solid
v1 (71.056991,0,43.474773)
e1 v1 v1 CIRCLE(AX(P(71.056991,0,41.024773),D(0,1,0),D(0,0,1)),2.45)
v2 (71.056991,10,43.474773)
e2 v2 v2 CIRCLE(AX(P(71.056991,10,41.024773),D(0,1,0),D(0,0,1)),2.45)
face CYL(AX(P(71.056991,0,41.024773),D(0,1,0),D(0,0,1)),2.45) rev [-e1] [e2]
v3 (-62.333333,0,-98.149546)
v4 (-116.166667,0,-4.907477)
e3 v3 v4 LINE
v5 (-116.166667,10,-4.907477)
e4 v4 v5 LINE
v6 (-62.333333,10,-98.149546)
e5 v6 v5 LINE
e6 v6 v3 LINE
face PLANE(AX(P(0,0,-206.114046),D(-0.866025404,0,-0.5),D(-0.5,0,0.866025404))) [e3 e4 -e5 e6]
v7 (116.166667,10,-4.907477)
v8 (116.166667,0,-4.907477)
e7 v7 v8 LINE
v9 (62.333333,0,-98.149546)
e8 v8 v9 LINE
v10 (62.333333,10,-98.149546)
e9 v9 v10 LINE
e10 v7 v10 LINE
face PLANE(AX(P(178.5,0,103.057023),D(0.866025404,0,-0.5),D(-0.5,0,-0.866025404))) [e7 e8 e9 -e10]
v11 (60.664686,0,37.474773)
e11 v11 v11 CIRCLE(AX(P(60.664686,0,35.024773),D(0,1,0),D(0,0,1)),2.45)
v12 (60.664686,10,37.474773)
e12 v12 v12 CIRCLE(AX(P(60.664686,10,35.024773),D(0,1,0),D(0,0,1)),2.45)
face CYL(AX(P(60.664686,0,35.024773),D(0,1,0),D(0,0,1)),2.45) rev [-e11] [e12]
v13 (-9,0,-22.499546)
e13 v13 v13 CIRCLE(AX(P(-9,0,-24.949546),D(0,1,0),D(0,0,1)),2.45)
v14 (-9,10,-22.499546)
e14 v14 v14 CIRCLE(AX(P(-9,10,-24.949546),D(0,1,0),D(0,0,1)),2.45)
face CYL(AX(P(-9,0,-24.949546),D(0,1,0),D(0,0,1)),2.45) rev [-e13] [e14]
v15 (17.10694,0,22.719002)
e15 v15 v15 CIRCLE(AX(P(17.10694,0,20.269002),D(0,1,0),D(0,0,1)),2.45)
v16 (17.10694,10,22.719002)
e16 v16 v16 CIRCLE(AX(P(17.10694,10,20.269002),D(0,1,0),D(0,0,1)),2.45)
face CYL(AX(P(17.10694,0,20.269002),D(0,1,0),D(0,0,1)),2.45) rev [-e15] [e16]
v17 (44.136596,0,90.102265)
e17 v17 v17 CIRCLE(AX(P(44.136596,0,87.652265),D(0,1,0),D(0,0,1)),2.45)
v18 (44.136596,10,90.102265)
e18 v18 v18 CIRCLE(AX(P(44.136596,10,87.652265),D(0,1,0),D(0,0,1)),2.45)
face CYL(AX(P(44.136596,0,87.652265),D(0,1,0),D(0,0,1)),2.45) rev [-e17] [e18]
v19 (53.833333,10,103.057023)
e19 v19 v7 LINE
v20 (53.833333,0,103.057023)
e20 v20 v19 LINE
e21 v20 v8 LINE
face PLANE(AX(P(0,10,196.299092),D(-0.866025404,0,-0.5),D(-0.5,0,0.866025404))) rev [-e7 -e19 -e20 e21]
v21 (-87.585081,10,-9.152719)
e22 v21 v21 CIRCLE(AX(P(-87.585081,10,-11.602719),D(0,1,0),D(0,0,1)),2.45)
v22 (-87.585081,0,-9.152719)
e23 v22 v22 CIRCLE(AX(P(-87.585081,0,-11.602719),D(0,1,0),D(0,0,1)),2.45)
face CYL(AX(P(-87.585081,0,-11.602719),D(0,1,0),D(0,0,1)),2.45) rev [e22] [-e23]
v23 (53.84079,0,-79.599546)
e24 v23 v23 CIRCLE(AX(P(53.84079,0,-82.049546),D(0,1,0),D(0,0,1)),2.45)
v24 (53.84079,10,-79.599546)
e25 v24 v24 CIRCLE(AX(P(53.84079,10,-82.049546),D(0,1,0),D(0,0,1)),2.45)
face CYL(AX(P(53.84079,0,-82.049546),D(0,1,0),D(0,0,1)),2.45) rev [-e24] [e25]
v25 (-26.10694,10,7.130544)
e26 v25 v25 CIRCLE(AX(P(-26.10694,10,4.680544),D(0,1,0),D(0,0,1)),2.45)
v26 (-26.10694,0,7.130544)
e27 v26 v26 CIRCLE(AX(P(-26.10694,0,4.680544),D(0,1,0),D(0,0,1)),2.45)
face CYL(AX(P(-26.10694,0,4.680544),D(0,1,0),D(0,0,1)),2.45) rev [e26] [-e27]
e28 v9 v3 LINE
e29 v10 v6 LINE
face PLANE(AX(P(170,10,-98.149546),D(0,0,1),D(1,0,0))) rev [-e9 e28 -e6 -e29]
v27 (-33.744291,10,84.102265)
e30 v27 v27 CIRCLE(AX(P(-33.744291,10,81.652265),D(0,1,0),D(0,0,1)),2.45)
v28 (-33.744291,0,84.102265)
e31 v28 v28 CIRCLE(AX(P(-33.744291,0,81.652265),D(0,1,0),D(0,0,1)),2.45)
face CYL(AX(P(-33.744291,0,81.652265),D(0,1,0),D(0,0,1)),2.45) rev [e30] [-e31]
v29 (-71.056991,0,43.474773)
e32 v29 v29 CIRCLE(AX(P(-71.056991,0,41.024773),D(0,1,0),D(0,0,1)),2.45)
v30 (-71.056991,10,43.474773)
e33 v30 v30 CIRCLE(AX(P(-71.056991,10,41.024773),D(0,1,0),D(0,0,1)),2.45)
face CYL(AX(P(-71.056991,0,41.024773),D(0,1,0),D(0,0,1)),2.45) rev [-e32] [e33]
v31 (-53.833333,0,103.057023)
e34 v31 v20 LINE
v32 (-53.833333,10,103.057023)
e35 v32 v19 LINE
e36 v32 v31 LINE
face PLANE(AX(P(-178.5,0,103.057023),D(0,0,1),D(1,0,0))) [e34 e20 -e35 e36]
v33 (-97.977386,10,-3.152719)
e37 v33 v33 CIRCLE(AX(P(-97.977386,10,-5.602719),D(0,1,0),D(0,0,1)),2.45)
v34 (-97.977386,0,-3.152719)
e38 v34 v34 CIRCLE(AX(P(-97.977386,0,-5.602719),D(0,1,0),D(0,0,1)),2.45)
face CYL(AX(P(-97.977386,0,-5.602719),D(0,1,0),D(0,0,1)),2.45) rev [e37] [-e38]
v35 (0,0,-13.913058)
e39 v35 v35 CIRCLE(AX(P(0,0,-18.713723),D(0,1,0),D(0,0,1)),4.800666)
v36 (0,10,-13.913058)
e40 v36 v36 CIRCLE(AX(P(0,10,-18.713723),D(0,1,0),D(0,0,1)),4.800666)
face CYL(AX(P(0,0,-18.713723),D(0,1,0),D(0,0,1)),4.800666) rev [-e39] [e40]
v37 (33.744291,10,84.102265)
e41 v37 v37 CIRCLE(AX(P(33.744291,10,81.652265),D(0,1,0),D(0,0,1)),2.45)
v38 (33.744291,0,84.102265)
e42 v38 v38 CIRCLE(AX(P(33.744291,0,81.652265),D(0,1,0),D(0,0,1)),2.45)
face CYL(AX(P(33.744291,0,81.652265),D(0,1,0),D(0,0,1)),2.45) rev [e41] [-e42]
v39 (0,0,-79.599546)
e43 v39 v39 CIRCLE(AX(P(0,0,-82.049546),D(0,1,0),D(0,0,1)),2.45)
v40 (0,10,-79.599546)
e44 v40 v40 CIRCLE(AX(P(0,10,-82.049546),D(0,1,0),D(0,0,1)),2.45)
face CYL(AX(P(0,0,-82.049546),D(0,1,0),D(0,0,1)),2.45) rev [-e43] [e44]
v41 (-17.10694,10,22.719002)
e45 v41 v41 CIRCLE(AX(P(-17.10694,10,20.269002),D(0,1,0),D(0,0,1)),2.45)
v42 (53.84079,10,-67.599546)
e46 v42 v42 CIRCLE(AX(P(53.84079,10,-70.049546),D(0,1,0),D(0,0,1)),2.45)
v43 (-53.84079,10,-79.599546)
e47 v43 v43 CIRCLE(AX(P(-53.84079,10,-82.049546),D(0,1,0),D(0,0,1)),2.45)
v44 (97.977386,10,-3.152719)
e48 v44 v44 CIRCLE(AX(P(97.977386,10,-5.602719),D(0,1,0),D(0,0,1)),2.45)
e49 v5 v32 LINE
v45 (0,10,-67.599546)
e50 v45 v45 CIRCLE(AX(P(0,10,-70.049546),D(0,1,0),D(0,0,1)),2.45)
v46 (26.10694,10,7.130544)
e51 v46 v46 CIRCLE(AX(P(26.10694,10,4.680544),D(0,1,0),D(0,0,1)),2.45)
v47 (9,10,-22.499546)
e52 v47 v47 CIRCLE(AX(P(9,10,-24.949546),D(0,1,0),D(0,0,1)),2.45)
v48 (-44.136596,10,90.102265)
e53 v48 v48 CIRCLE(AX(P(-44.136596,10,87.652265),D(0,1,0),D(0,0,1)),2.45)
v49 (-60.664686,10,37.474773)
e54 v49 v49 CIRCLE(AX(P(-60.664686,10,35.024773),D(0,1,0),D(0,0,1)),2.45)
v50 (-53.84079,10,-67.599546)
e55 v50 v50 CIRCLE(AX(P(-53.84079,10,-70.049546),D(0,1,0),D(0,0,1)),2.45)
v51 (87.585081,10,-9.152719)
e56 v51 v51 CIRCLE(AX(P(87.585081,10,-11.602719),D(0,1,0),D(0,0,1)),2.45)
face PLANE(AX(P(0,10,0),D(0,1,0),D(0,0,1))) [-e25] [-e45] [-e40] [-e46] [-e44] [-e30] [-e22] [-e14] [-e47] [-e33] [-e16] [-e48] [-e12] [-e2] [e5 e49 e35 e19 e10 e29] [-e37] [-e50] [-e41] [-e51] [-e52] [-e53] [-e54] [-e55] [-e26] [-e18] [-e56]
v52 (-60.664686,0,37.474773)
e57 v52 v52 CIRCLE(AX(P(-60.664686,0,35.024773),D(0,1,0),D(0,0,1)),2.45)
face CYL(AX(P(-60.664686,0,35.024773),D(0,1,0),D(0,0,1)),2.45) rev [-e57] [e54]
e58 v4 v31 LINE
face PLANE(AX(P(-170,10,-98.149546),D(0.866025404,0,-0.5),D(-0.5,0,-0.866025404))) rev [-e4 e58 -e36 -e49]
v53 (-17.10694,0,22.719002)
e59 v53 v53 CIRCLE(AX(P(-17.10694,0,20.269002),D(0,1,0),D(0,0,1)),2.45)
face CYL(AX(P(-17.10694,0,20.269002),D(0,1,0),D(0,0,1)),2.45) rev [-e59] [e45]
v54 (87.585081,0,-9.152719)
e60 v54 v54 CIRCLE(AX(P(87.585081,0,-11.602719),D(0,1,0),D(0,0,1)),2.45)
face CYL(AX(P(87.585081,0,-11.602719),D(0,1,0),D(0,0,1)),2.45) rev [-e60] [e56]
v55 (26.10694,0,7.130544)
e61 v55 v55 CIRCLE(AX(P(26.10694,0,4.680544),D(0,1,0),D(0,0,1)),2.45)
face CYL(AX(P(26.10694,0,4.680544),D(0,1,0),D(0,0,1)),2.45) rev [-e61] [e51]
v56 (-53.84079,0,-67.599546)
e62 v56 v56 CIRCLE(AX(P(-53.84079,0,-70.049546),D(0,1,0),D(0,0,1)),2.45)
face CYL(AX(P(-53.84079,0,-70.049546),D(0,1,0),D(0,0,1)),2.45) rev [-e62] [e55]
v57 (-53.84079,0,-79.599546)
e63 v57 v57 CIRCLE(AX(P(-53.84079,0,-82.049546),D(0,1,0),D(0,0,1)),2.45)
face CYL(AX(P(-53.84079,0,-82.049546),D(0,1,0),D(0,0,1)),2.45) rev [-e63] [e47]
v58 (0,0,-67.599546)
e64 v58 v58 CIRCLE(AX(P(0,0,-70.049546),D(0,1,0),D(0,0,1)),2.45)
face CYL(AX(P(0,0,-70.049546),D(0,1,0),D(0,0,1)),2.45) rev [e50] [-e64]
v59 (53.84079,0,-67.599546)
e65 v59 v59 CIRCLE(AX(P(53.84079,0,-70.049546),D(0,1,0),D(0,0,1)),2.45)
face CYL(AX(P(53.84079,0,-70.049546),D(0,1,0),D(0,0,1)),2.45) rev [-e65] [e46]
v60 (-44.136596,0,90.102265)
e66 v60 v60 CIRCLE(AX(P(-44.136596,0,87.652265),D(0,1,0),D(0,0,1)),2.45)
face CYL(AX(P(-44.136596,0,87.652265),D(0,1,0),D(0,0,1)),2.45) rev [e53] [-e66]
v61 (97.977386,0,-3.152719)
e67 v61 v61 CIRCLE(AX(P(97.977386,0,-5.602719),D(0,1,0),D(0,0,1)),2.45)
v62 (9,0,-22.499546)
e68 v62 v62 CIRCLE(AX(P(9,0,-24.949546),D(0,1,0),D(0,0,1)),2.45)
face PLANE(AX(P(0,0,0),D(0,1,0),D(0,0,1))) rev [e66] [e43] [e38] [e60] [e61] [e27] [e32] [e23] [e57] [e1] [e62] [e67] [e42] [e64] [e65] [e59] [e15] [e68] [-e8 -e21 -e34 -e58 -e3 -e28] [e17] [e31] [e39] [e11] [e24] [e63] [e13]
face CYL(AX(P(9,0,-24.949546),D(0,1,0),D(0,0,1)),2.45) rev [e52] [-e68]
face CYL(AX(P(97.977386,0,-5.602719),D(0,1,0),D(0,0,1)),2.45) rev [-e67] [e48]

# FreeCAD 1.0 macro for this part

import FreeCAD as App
import Part
import Sketcher
from FreeCAD import Vector
Q = App.Units.Quantity


def add_polygon(sketch, points):
    """Adds a closed chain of lines whose ends are joined by coincident constraints."""
    first, n = sketch.GeometryCount, len(points)
    for a, b in zip(points, points[1:] + points[:1]):
        sketch.addGeometry(Part.LineSegment(App.Vector(*a, 0), App.Vector(*b, 0)), False)
    for i in range(n):
        sketch.addConstraint(Sketcher.Constraint("Coincident", first + i, 2, first + (i + 1) % n, 1))

doc = App.newDocument("Part")
body = doc.addObject("PartDesign::Body", "Body")

# Sketch on XZ plane
sketch1 = body.newObject("Sketcher::SketchObject", "Sketch")
sketch1.AttachmentSupport = (doc.getObject("XZ_Plane"), [""])
sketch1.MapMode = "FlatFace"
add_polygon(sketch1, [(170, -98), (-170, -98), (0, 196)])  # lines 0-2
sketch1.addConstraint([
    Sketcher.Constraint("Horizontal", 0),
    Sketcher.Constraint("PointOnObject", 1, 2, -2),
    Sketcher.Constraint("Equal", 1, 2),
    Sketcher.Constraint("DistanceX", 0, 2, 0, 1, 340.0),
    Sketcher.Constraint("Angle", 1, Q("60 deg")),
    Sketcher.Constraint("DistanceY", -1, 1, 1, 2, 196.299092),
])
pad1 = body.newObject("PartDesign::Pad", "Pad")
pad1.Profile = sketch1
pad1.Length = 10
pad1.Reversed = True

# Sketch on XZ plane
sketch2 = body.newObject("Sketcher::SketchObject", "Sketch001")
sketch2.AttachmentSupport = (doc.getObject("XZ_Plane"), [""])
sketch2.MapMode = "FlatFace"
sketch2.AttachmentOffset = App.Placement(Vector(0, 0, -10), App.Rotation())
add_polygon(sketch2, [(-216, -144), (-216, 242), (216, 242), (216, -144), (36, -144), (178, 103), (-178, 103), (-36, -144)])  # lines 0-7
sketch2.addConstraint([
    Sketcher.Constraint("Vertical", 0),
    Sketcher.Constraint("Horizontal", 1),
    Sketcher.Constraint("Vertical", 2),
    Sketcher.Constraint("Horizontal", 3),
    Sketcher.Constraint("Horizontal", 5),
    Sketcher.Constraint("Horizontal", 7),
    Sketcher.Constraint("Symmetric", 3, 2, 6, 2, -2),
    Sketcher.Constraint("Equal", 3, 7),
    Sketcher.Constraint("Equal", 4, 6),
    Sketcher.Constraint("DistanceX", 5, 2, 5, 1, 357.0),
    Sketcher.Constraint("Angle", 4, Q("60 deg")),
    Sketcher.Constraint("DistanceX", 1, 1, 1, 2, 431.978),
    Sketcher.Constraint("DistanceY", 0, 1, 0, 2, 386.427),
    Sketcher.Constraint("DistanceY", -1, 1, 0, 2, 242.288),
    Sketcher.Constraint("DistanceX", 3, 2, 3, 1, 180.20769),
])
pocket1 = body.newObject("PartDesign::Pocket", "Pocket")
pocket1.Profile = sketch2
pocket1.Length = 10
pocket1.Reversed = True

# Sketch on XZ plane
sketch3 = body.newObject("Sketcher::SketchObject", "Sketch002")
sketch3.AttachmentSupport = (doc.getObject("XZ_Plane"), [""])
sketch3.MapMode = "FlatFace"
sketch3.AttachmentOffset = App.Placement(Vector(0, 0, -10), App.Rotation())
sketch3.addGeometry(Part.Circle(Vector(0, -18.7, 0), Vector(0, 0, 1), 4.8), False)
sketch3.addConstraint([
    Sketcher.Constraint("PointOnObject", 0, 3, -2),
    Sketcher.Constraint("Diameter", 0, 9.601332),
    Sketcher.Constraint("DistanceY", 0, 3, -1, 1, 18.713723),
])
pocket2 = body.newObject("PartDesign::Pocket", "Pocket001")
pocket2.Profile = sketch3
pocket2.Length = 10
pocket2.Reversed = True

# Sketch on XZ plane
sketch4 = body.newObject("Sketcher::SketchObject", "Sketch003")
sketch4.AttachmentSupport = (doc.getObject("XZ_Plane"), [""])
sketch4.MapMode = "FlatFace"
sketch4.AttachmentOffset = App.Placement(Vector(0, 0, -10), App.Rotation())
sketch4.addGeometry([
    Part.Circle(Vector(0, -82, 0), Vector(0, 0, 1), 2.5),  # 0
    Part.Circle(Vector(-53.8, -82, 0), Vector(0, 0, 1), 2.5),  # 1
    Part.Circle(Vector(-53.8, -70, 0), Vector(0, 0, 1), 2.5),  # 2
    Part.Circle(Vector(0, -70, 0), Vector(0, 0, 1), 2.5),  # 3
    Part.Circle(Vector(71.1, 41, 0), Vector(0, 0, 1), 2.5),  # 4
    Part.Circle(Vector(60.7, 35, 0), Vector(0, 0, 1), 2.5),  # 5
    Part.Circle(Vector(-71.1, 41, 0), Vector(0, 0, 1), 2.5),  # 6
    Part.Circle(Vector(-60.7, 35, 0), Vector(0, 0, 1), 2.5),  # 7
    Part.Circle(Vector(-87.6, -11.6, 0), Vector(0, 0, 1), 2.5),  # 8
    Part.Circle(Vector(-98, -5.6, 0), Vector(0, 0, 1), 2.5),  # 9
    Part.Circle(Vector(53.8, -82, 0), Vector(0, 0, 1), 2.5),  # 10
    Part.Circle(Vector(53.8, -70, 0), Vector(0, 0, 1), 2.5),  # 11
    Part.Circle(Vector(98, -5.6, 0), Vector(0, 0, 1), 2.5),  # 12
    Part.Circle(Vector(87.6, -11.6, 0), Vector(0, 0, 1), 2.5),  # 13
    Part.Circle(Vector(44.1, 87.7, 0), Vector(0, 0, 1), 2.5),  # 14
    Part.Circle(Vector(33.7, 81.7, 0), Vector(0, 0, 1), 2.5),  # 15
    Part.Circle(Vector(-33.7, 81.7, 0), Vector(0, 0, 1), 2.5),  # 16
    Part.Circle(Vector(-44.1, 87.7, 0), Vector(0, 0, 1), 2.5),  # 17
], False)
sketch4.addConstraint([
    Sketcher.Constraint("Equal", 0, 1),
    Sketcher.Constraint("Equal", 1, 2),
    Sketcher.Constraint("Equal", 2, 3),
    Sketcher.Constraint("Equal", 3, 4),
    Sketcher.Constraint("Equal", 4, 5),
    Sketcher.Constraint("Equal", 5, 6),
    Sketcher.Constraint("Equal", 6, 7),
    Sketcher.Constraint("Equal", 7, 8),
    Sketcher.Constraint("Equal", 8, 9),
    Sketcher.Constraint("Equal", 9, 10),
    Sketcher.Constraint("Equal", 10, 11),
    Sketcher.Constraint("Equal", 11, 12),
    Sketcher.Constraint("Equal", 12, 13),
    Sketcher.Constraint("Equal", 13, 14),
    Sketcher.Constraint("Equal", 14, 15),
    Sketcher.Constraint("Equal", 15, 16),
    Sketcher.Constraint("Equal", 16, 17),
    Sketcher.Constraint("Symmetric", 4, 3, 6, 3, -2),
    Sketcher.Constraint("Symmetric", 5, 3, 7, 3, -2),
    Sketcher.Constraint("Symmetric", 1, 3, 10, 3, -2),
    Sketcher.Constraint("Symmetric", 2, 3, 11, 3, -2),
    Sketcher.Constraint("Symmetric", 9, 3, 12, 3, -2),
    Sketcher.Constraint("Symmetric", 8, 3, 13, 3, -2),
    Sketcher.Constraint("Symmetric", 15, 3, 16, 3, -2),
    Sketcher.Constraint("Symmetric", 14, 3, 17, 3, -2),
    Sketcher.Constraint("PointOnObject", 0, 3, -2),
    Sketcher.Constraint("PointOnObject", 3, 3, -2),
    Sketcher.Constraint("Horizontal", 0, 3, 1, 3),
    Sketcher.Constraint("Horizontal", 2, 3, 3, 3),
    Sketcher.Constraint("Vertical", 1, 3, 2, 3),
    Sketcher.Constraint("Diameter", 0, 4.9),
    Sketcher.Constraint("DistanceY", 1, 3, 2, 3, 12.0),
    Sketcher.Constraint("DistanceY", 5, 3, 4, 3, 6.0),
    Sketcher.Constraint("DistanceY", 8, 3, 9, 3, 6.0),
    Sketcher.Constraint("DistanceY", 15, 3, 14, 3, 6.0),
    Sketcher.Constraint("DistanceX", 6, 3, 2, 3, 17.216201),
    Sketcher.Constraint("DistanceX", 9, 3, 7, 3, 37.3127),
    Sketcher.Constraint("DistanceX", 15, 3, 4, 3, 37.3127),
    Sketcher.Constraint("DistanceX", 1, 3, -1, 1, 53.84079),
    Sketcher.Constraint("DistanceX", 8, 3, -1, 1, 87.585081),
    Sketcher.Constraint("DistanceY", 8, 3, -1, 1, 11.602719),
    Sketcher.Constraint("DistanceY", 3, 3, 4, 3, 111.074319),
    Sketcher.Constraint("DistanceX", 14, 3, 5, 3, 16.52809),
    Sketcher.Constraint("DistanceX", 17, 3, 14, 3, 88.273192),
    Sketcher.Constraint("DistanceY", 0, 3, -1, 1, 82.049546),
    Sketcher.Constraint("DistanceY", -1, 1, 14, 3, 87.652265),
])
pocket3 = body.newObject("PartDesign::Pocket", "Pocket002")
pocket3.Profile = sketch4
pocket3.Length = 10
pocket3.Reversed = True

# Sketch on XZ plane
sketch5 = body.newObject("Sketcher::SketchObject", "Sketch004")
sketch5.AttachmentSupport = (doc.getObject("XZ_Plane"), [""])
sketch5.MapMode = "FlatFace"
sketch5.AttachmentOffset = App.Placement(Vector(0, 0, -10), App.Rotation())
sketch5.addGeometry([
    Part.Circle(Vector(26.1, 4.7, 0), Vector(0, 0, 1), 2.5),  # 0
    Part.Circle(Vector(17.1, 20.3, 0), Vector(0, 0, 1), 2.5),  # 1
    Part.Circle(Vector(-17.1, 20.3, 0), Vector(0, 0, 1), 2.5),  # 2
    Part.Circle(Vector(-26.1, 4.7, 0), Vector(0, 0, 1), 2.5),  # 3
    Part.Circle(Vector(-9, -24.9, 0), Vector(0, 0, 1), 2.5),  # 4
    Part.Circle(Vector(9, -24.9, 0), Vector(0, 0, 1), 2.5),  # 5
], False)
sketch5.addConstraint([
    Sketcher.Constraint("Equal", 0, 1),
    Sketcher.Constraint("Equal", 1, 2),
    Sketcher.Constraint("Equal", 2, 3),
    Sketcher.Constraint("Equal", 3, 4),
    Sketcher.Constraint("Equal", 4, 5),
    Sketcher.Constraint("Symmetric", 1, 3, 2, 3, -2),
    Sketcher.Constraint("Symmetric", 0, 3, 3, 3, -2),
    Sketcher.Constraint("Symmetric", 4, 3, 5, 3, -2),
    Sketcher.Constraint("Diameter", 0, 4.9),
    Sketcher.Constraint("DistanceX", 4, 3, -1, 1, 9.0),
    Sketcher.Constraint("DistanceX", 1, 3, 0, 3, 9.0),
    Sketcher.Constraint("DistanceY", -1, 1, 1, 3, 20.269002),
    Sketcher.Constraint("DistanceX", -1, 1, 0, 3, 26.10694),
    Sketcher.Constraint("DistanceY", 4, 3, 3, 3, 29.63009),
    Sketcher.Constraint("DistanceY", -1, 1, 0, 3, 4.680544),
])
pocket4 = body.newObject("PartDesign::Pocket", "Pocket003")
pocket4.Profile = sketch5
pocket4.Length = 10
pocket4.Reversed = True

doc.recompute()
